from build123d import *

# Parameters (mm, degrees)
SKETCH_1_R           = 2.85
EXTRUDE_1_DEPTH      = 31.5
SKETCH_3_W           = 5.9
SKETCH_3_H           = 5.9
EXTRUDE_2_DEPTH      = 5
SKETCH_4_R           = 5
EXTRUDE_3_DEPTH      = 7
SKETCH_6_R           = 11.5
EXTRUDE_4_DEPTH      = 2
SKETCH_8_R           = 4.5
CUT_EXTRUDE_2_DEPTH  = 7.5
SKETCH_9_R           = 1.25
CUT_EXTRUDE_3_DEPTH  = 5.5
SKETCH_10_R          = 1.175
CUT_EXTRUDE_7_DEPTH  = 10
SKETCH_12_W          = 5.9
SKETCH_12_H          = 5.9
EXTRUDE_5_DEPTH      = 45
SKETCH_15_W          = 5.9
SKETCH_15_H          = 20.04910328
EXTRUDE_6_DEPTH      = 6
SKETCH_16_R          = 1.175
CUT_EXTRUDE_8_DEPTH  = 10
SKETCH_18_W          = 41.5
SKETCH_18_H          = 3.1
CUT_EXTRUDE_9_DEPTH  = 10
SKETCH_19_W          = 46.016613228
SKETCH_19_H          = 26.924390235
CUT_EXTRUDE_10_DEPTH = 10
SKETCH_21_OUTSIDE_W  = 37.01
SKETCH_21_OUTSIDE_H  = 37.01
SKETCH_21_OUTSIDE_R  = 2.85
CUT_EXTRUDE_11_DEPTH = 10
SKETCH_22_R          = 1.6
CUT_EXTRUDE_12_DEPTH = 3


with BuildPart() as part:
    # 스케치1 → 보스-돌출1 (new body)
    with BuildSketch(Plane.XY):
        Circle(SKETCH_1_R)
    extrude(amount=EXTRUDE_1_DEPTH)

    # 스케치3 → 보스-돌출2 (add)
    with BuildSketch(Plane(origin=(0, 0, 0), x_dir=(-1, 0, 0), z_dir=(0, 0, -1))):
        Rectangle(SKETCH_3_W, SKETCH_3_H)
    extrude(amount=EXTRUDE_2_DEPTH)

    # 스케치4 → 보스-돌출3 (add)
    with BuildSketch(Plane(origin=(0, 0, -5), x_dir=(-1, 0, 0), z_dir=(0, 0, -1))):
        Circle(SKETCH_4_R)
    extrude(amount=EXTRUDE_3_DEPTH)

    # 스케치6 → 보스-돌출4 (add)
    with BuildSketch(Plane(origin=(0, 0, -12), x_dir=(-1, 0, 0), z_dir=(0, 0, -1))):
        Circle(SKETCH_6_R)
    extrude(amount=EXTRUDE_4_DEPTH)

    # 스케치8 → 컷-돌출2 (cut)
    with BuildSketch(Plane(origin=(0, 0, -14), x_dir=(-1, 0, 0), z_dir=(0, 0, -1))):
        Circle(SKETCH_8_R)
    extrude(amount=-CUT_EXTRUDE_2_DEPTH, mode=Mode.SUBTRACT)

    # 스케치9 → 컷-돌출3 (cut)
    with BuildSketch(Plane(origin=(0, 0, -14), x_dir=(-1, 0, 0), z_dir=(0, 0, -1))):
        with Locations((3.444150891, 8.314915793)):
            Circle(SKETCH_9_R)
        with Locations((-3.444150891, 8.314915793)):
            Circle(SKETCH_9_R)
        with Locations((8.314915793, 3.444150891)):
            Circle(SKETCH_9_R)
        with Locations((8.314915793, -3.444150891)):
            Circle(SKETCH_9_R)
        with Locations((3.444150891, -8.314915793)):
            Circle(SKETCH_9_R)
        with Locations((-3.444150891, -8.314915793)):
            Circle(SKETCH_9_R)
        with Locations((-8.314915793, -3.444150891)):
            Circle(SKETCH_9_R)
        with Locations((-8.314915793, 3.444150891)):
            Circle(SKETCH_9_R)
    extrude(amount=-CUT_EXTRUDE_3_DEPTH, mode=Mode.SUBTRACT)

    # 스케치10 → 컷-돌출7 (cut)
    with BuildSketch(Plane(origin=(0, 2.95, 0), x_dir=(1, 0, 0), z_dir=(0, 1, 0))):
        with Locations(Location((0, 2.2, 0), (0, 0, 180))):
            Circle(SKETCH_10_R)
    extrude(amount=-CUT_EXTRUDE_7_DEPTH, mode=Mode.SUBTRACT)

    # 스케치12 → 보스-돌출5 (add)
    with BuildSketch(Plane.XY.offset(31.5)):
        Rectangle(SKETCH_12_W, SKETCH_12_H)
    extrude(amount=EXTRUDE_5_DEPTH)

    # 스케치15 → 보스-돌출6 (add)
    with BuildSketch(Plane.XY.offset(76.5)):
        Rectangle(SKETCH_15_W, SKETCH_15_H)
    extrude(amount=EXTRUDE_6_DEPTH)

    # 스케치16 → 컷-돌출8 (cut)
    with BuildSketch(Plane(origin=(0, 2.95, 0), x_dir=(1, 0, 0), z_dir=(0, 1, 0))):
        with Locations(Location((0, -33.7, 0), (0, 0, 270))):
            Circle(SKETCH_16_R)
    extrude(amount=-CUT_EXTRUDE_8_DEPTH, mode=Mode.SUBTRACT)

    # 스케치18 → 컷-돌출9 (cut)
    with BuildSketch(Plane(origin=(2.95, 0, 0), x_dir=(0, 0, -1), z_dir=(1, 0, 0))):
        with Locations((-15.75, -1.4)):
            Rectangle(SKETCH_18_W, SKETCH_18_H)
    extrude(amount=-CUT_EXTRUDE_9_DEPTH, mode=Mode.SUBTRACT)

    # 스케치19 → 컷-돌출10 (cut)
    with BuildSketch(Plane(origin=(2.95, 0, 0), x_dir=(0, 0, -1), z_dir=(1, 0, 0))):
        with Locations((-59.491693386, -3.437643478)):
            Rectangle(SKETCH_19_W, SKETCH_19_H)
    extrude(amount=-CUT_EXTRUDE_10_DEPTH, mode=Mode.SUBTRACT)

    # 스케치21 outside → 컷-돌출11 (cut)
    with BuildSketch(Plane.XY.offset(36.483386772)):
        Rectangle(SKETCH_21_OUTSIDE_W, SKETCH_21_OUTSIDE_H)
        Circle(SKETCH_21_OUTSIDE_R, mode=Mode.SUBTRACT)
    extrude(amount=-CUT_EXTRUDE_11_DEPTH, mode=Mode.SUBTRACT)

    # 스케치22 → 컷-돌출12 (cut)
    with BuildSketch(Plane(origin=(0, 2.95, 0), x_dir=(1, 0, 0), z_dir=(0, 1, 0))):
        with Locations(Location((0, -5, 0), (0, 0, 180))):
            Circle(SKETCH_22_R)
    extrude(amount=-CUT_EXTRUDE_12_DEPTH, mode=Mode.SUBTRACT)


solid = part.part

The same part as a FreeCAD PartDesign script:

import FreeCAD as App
import Part
import Sketcher
Q = App.Units.Quantity

doc = App.newDocument("Part")
params = doc.addObject("Spreadsheet::Sheet", "Params")
for row, (alias, value) in enumerate([
    ("sketch1_diameter", "5.7 mm"),
    ("pad1_length", "31.5 mm"),
    ("sketch2_width", "5.9 mm"),
    ("pad2_length", "5 mm"),
    ("sketch3_diameter", "10 mm"),
    ("pad3_length", "7 mm"),
    ("sketch4_diameter", "23 mm"),
    ("pad4_length", "2 mm"),
    ("sketch5_diameter", "9 mm"),
    ("pocket1_length", "7.5 mm"),
    ("sketch6_diameter", "2.5 mm"),
    ("pocket2_length", "5.5 mm"),
    ("sketch7_diameter", "2.35 mm"),
    ("pocket3_length", "10 mm"),
    ("sketch8_width", "5.9 mm"),
    ("pad5_length", "45 mm"),
    ("sketch9_width", "5.9 mm"),
    ("pad6_length", "6 mm"),
    ("sketch10_diameter", "2.35 mm"),
    ("pocket4_length", "10 mm"),
    ("sketch11_width", "3.1 mm"),
    ("sketch11_height", "41.5 mm"),
    ("pocket5_length", "10 mm"),
    ("pocket6_length", "10 mm"),
    ("sketch13_diameter", "5.7 mm"),
    ("sketch13_width", "37.01 mm"),
    ("pocket7_length", "10 mm"),
    ("sketch14_diameter", "3.2 mm"),
    ("pocket8_length", "3 mm"),
], start=1):
    params.set(f"A{row}", alias)
    params.set(f"B{row}", "=" + value)
    params.setAlias(f"B{row}", alias)

body = doc.addObject("PartDesign::Body", "Body")

# Sketch on XY plane
sketch1 = body.newObject("Sketcher::SketchObject", "Sketch")
sketch1.AttachmentSupport = (doc.getObject("XY_Plane"), [""])
sketch1.MapMode = "FlatFace"
sketch1.addGeometry(Part.Circle(App.Vector(0, 0, 0), App.Vector(0, 0, 1), 2.85), False)
sketch1.addConstraint([
    Sketcher.Constraint("Coincident", 0, 3, -1, 1),
    Sketcher.Constraint("Diameter", 0, Q("5.7 mm")),
])
sketch1.setExpression("Constraints[1]", "Params.sketch1_diameter")
pad1 = body.newObject("PartDesign::Pad", "Pad")
pad1.Profile = sketch1
pad1.setExpression("Length", "Params.pad1_length")

# Sketch on XY plane
sketch2 = body.newObject("Sketcher::SketchObject", "Sketch001")
sketch2.AttachmentSupport = (doc.getObject("XY_Plane"), [""])
sketch2.MapMode = "FlatFace"
sketch2.addGeometry([
    Part.LineSegment(App.Vector(2.95, 2.95, 0), App.Vector(2.95, -2.95, 0)),
    Part.LineSegment(App.Vector(2.95, -2.95, 0), App.Vector(-2.95, -2.95, 0)),
    Part.LineSegment(App.Vector(-2.95, -2.95, 0), App.Vector(-2.95, 2.95, 0)),
    Part.LineSegment(App.Vector(-2.95, 2.95, 0), App.Vector(2.95, 2.95, 0)),
], False)
sketch2.addConstraint([
    Sketcher.Constraint("Coincident", 0, 2, 1, 1),
    Sketcher.Constraint("Coincident", 1, 2, 2, 1),
    Sketcher.Constraint("Coincident", 2, 2, 3, 1),
    Sketcher.Constraint("Coincident", 3, 2, 0, 1),
    Sketcher.Constraint("Vertical", 0),
    Sketcher.Constraint("Horizontal", 1),
    Sketcher.Constraint("Vertical", 2),
    Sketcher.Constraint("Horizontal", 3),
    Sketcher.Constraint("Symmetric", 0, 2, 2, 2, -1, 1),
    Sketcher.Constraint("Equal", 3, 0),
    Sketcher.Constraint("DistanceX", 1, 2, 1, 1, Q("5.9 mm")),
])
sketch2.setExpression("Constraints[10]", "Params.sketch2_width")
pad2 = body.newObject("PartDesign::Pad", "Pad001")
pad2.Profile = sketch2
pad2.setExpression("Length", "Params.pad2_length")
pad2.Reversed = True

# Sketch on XY plane
sketch3 = body.newObject("Sketcher::SketchObject", "Sketch002")
sketch3.AttachmentSupport = (doc.getObject("XY_Plane"), [""])
sketch3.MapMode = "FlatFace"
sketch3.AttachmentOffset = App.Placement(App.Vector(0, 0, -5), App.Rotation())
sketch3.addGeometry(Part.Circle(App.Vector(0, 0, 0), App.Vector(0, 0, 1), 5), False)
sketch3.addConstraint([
    Sketcher.Constraint("Coincident", 0, 3, -1, 1),
    Sketcher.Constraint("Diameter", 0, Q("10 mm")),
])
sketch3.setExpression("Constraints[1]", "Params.sketch3_diameter")
pad3 = body.newObject("PartDesign::Pad", "Pad002")
pad3.Profile = sketch3
pad3.setExpression("Length", "Params.pad3_length")
pad3.Reversed = True

# Sketch on XY plane
sketch4 = body.newObject("Sketcher::SketchObject", "Sketch003")
sketch4.AttachmentSupport = (doc.getObject("XY_Plane"), [""])
sketch4.MapMode = "FlatFace"
sketch4.AttachmentOffset = App.Placement(App.Vector(0, 0, -12), App.Rotation())
sketch4.addGeometry(Part.Circle(App.Vector(0, 0, 0), App.Vector(0, 0, 1), 11.5), False)
sketch4.addConstraint([
    Sketcher.Constraint("Coincident", 0, 3, -1, 1),
    Sketcher.Constraint("Diameter", 0, Q("23 mm")),
])
sketch4.setExpression("Constraints[1]", "Params.sketch4_diameter")
pad4 = body.newObject("PartDesign::Pad", "Pad003")
pad4.Profile = sketch4
pad4.setExpression("Length", "Params.pad4_length")
pad4.Reversed = True

# Sketch on XY plane
sketch5 = body.newObject("Sketcher::SketchObject", "Sketch004")
sketch5.AttachmentSupport = (doc.getObject("XY_Plane"), [""])
sketch5.MapMode = "FlatFace"
sketch5.AttachmentOffset = App.Placement(App.Vector(0, 0, -14), App.Rotation())
sketch5.addGeometry(Part.Circle(App.Vector(0, 0, 0), App.Vector(0, 0, 1), 4.5), False)
sketch5.addConstraint([
    Sketcher.Constraint("Coincident", 0, 3, -1, 1),
    Sketcher.Constraint("Diameter", 0, Q("9 mm")),
])
sketch5.setExpression("Constraints[1]", "Params.sketch5_diameter")
pocket1 = body.newObject("PartDesign::Pocket", "Pocket")
pocket1.Profile = sketch5
pocket1.setExpression("Length", "Params.pocket1_length")
pocket1.Reversed = True

# Sketch on XY plane
sketch6 = body.newObject("Sketcher::SketchObject", "Sketch005")
sketch6.AttachmentSupport = (doc.getObject("XY_Plane"), [""])
sketch6.MapMode = "FlatFace"
sketch6.AttachmentOffset = App.Placement(App.Vector(0, 0, -14), App.Rotation())
sketch6.addGeometry([
    Part.Circle(App.Vector(-3.444151, 8.314916, 0), App.Vector(0, 0, 1), 1.25),  # 0
    Part.Circle(App.Vector(3.444151, 8.314916, 0), App.Vector(0, 0, 1), 1.25),  # 1
    Part.Circle(App.Vector(-8.314916, 3.444151, 0), App.Vector(0, 0, 1), 1.25),  # 2
    Part.Circle(App.Vector(-8.314916, -3.444151, 0), App.Vector(0, 0, 1), 1.25),  # 3
    Part.Circle(App.Vector(-3.444151, -8.314916, 0), App.Vector(0, 0, 1), 1.25),  # 4
    Part.Circle(App.Vector(3.444151, -8.314916, 0), App.Vector(0, 0, 1), 1.25),  # 5
    Part.Circle(App.Vector(8.314916, -3.444151, 0), App.Vector(0, 0, 1), 1.25),  # 6
    Part.Circle(App.Vector(8.314916, 3.444151, 0), App.Vector(0, 0, 1), 1.25),  # 7
], False)
sketch6.addConstraint([
    Sketcher.Constraint("Equal", 0, 1),
    Sketcher.Constraint("Equal", 1, 2),
    Sketcher.Constraint("Equal", 2, 3),
    Sketcher.Constraint("Equal", 3, 4),
    Sketcher.Constraint("Equal", 4, 5),
    Sketcher.Constraint("Equal", 5, 6),
    Sketcher.Constraint("Equal", 6, 7),
    Sketcher.Constraint("Symmetric", 1, 3, 4, 3, -1, 1),
    Sketcher.Constraint("Symmetric", 0, 3, 5, 3, -1, 1),
    Sketcher.Constraint("Symmetric", 2, 3, 6, 3, -1, 1),
    Sketcher.Constraint("Symmetric", 3, 3, 7, 3, -1, 1),
    Sketcher.Constraint("Symmetric", 0, 3, 1, 3, -2),
    Sketcher.Constraint("Symmetric", 3, 3, 6, 3, -2),
    Sketcher.Constraint("Diameter", 0, Q("2.5 mm")),
    Sketcher.Constraint("DistanceX", 0, 3, 1, 3, Q("6.888302 mm")),
    Sketcher.Constraint("DistanceY", 3, 3, 2, 3, Q("6.888302 mm")),
    Sketcher.Constraint("DistanceY", 4, 3, 0, 3, Q("16.629832 mm")),
    Sketcher.Constraint("DistanceX", 3, 3, 6, 3, Q("16.629832 mm")),
])
sketch6.setExpression("Constraints[13]", "Params.sketch6_diameter")
pocket2 = body.newObject("PartDesign::Pocket", "Pocket001")
pocket2.Profile = sketch6
pocket2.setExpression("Length", "Params.pocket2_length")
pocket2.Reversed = True

# Sketch on XZ plane
sketch7 = body.newObject("Sketcher::SketchObject", "Sketch006")
sketch7.AttachmentSupport = (doc.getObject("XZ_Plane"), [""])
sketch7.MapMode = "FlatFace"
sketch7.AttachmentOffset = App.Placement(App.Vector(0, 0, -2.95), App.Rotation())
sketch7.addGeometry(Part.Circle(App.Vector(0, -2.2, 0), App.Vector(0, 0, 1), 1.175), False)
sketch7.addConstraint([
    Sketcher.Constraint("PointOnObject", 0, 3, -2),
    Sketcher.Constraint("Diameter", 0, Q("2.35 mm")),
    Sketcher.Constraint("DistanceY", 0, 3, -1, 1, Q("2.2 mm")),
])
sketch7.setExpression("Constraints[1]", "Params.sketch7_diameter")
pocket3 = body.newObject("PartDesign::Pocket", "Pocket002")
pocket3.Profile = sketch7
pocket3.setExpression("Length", "Params.pocket3_length")
pocket3.Reversed = True

# Sketch on XY plane
sketch8 = body.newObject("Sketcher::SketchObject", "Sketch007")
sketch8.AttachmentSupport = (doc.getObject("XY_Plane"), [""])
sketch8.MapMode = "FlatFace"
sketch8.AttachmentOffset = App.Placement(App.Vector(0, 0, 31.5), App.Rotation())
sketch8.addGeometry([
    Part.LineSegment(App.Vector(-2.95, 2.95, 0), App.Vector(-2.95, -2.95, 0)),
    Part.LineSegment(App.Vector(-2.95, -2.95, 0), App.Vector(2.95, -2.95, 0)),
    Part.LineSegment(App.Vector(2.95, -2.95, 0), App.Vector(2.95, 2.95, 0)),
    Part.LineSegment(App.Vector(2.95, 2.95, 0), App.Vector(-2.95, 2.95, 0)),
], False)
sketch8.addConstraint([
    Sketcher.Constraint("Coincident", 0, 2, 1, 1),
    Sketcher.Constraint("Coincident", 1, 2, 2, 1),
    Sketcher.Constraint("Coincident", 2, 2, 3, 1),
    Sketcher.Constraint("Coincident", 3, 2, 0, 1),
    Sketcher.Constraint("Vertical", 0),
    Sketcher.Constraint("Horizontal", 1),
    Sketcher.Constraint("Vertical", 2),
    Sketcher.Constraint("Horizontal", 3),
    Sketcher.Constraint("Symmetric", 0, 2, 2, 2, -1, 1),
    Sketcher.Constraint("Equal", 3, 0),
    Sketcher.Constraint("DistanceX", 1, 1, 1, 2, Q("5.9 mm")),
])
sketch8.setExpression("Constraints[10]", "Params.sketch8_width")
pad5 = body.newObject("PartDesign::Pad", "Pad004")
pad5.Profile = sketch8
pad5.setExpression("Length", "Params.pad5_length")

# Sketch on XY plane
sketch9 = body.newObject("Sketcher::SketchObject", "Sketch008")
sketch9.AttachmentSupport = (doc.getObject("XY_Plane"), [""])
sketch9.MapMode = "FlatFace"
sketch9.AttachmentOffset = App.Placement(App.Vector(0, 0, 76.5), App.Rotation())
sketch9.addGeometry([
    Part.LineSegment(App.Vector(-2.95, 10.024552, 0), App.Vector(-2.95, -10.024552, 0)),
    Part.LineSegment(App.Vector(-2.95, -10.024552, 0), App.Vector(2.95, -10.024552, 0)),
    Part.LineSegment(App.Vector(2.95, -10.024552, 0), App.Vector(2.95, 10.024552, 0)),
    Part.LineSegment(App.Vector(2.95, 10.024552, 0), App.Vector(-2.95, 10.024552, 0)),
], False)
sketch9.addConstraint([
    Sketcher.Constraint("Coincident", 0, 2, 1, 1),
    Sketcher.Constraint("Coincident", 1, 2, 2, 1),
    Sketcher.Constraint("Coincident", 2, 2, 3, 1),
    Sketcher.Constraint("Coincident", 3, 2, 0, 1),
    Sketcher.Constraint("Vertical", 0),
    Sketcher.Constraint("Horizontal", 1),
    Sketcher.Constraint("Vertical", 2),
    Sketcher.Constraint("Horizontal", 3),
    Sketcher.Constraint("Symmetric", 0, 2, 2, 2, -1, 1),
    Sketcher.Constraint("DistanceX", 1, 1, 1, 2, Q("5.9 mm")),
    Sketcher.Constraint("DistanceY", 0, 2, 0, 1, Q("20.049103 mm")),
])
sketch9.setExpression("Constraints[9]", "Params.sketch9_width")
pad6 = body.newObject("PartDesign::Pad", "Pad005")
pad6.Profile = sketch9
pad6.setExpression("Length", "Params.pad6_length")

# Sketch on XZ plane
sketch10 = body.newObject("Sketcher::SketchObject", "Sketch009")
sketch10.AttachmentSupport = (doc.getObject("XZ_Plane"), [""])
sketch10.MapMode = "FlatFace"
sketch10.AttachmentOffset = App.Placement(App.Vector(0, 0, -2.95), App.Rotation())
sketch10.addGeometry(Part.Circle(App.Vector(0, 33.7, 0), App.Vector(0, 0, 1), 1.175), False)
sketch10.addConstraint([
    Sketcher.Constraint("PointOnObject", 0, 3, -2),
    Sketcher.Constraint("Diameter", 0, Q("2.35 mm")),
    Sketcher.Constraint("DistanceY", -1, 1, 0, 3, Q("33.7 mm")),
])
sketch10.setExpression("Constraints[1]", "Params.sketch10_diameter")
pocket4 = body.newObject("PartDesign::Pocket", "Pocket003")
pocket4.Profile = sketch10
pocket4.setExpression("Length", "Params.pocket4_length")
pocket4.Reversed = True

# Sketch on YZ plane
sketch11 = body.newObject("Sketcher::SketchObject", "Sketch010")
sketch11.AttachmentSupport = (doc.getObject("YZ_Plane"), [""])
sketch11.MapMode = "FlatFace"
sketch11.AttachmentOffset = App.Placement(App.Vector(0, 0, 2.95), App.Rotation())
sketch11.addGeometry([
    Part.LineSegment(App.Vector(0.15, 36.5, 0), App.Vector(-2.95, 36.5, 0)),
    Part.LineSegment(App.Vector(-2.95, 36.5, 0), App.Vector(-2.95, -5, 0)),
    Part.LineSegment(App.Vector(-2.95, -5, 0), App.Vector(0.15, -5, 0)),
    Part.LineSegment(App.Vector(0.15, -5, 0), App.Vector(0.15, 36.5, 0)),
], False)
sketch11.addConstraint([
    Sketcher.Constraint("Coincident", 0, 2, 1, 1),
    Sketcher.Constraint("Coincident", 1, 2, 2, 1),
    Sketcher.Constraint("Coincident", 2, 2, 3, 1),
    Sketcher.Constraint("Coincident", 3, 2, 0, 1),
    Sketcher.Constraint("Horizontal", 0),
    Sketcher.Constraint("Vertical", 1),
    Sketcher.Constraint("Horizontal", 2),
    Sketcher.Constraint("Vertical", 3),
    Sketcher.Constraint("DistanceX", 0, 2, 0, 1, Q("3.1 mm")),
    Sketcher.Constraint("DistanceY", 1, 2, 1, 1, Q("41.5 mm")),
    Sketcher.Constraint("DistanceY", 1, 2, -1, 1, Q("5 mm")),
    Sketcher.Constraint("DistanceX", 0, 2, -1, 1, Q("2.95 mm")),
])
sketch11.setExpression("Constraints[8]", "Params.sketch11_width")
sketch11.setExpression("Constraints[9]", "Params.sketch11_height")
pocket5 = body.newObject("PartDesign::Pocket", "Pocket004")
pocket5.Profile = sketch11
pocket5.setExpression("Length", "Params.pocket5_length")

# Sketch on YZ plane
sketch12 = body.newObject("Sketcher::SketchObject", "Sketch011")
sketch12.AttachmentSupport = (doc.getObject("YZ_Plane"), [""])
sketch12.MapMode = "FlatFace"
sketch12.AttachmentOffset = App.Placement(App.Vector(0, 0, 2.95), App.Rotation())
sketch12.addGeometry([
    Part.LineSegment(App.Vector(10.024552, 82.5, 0), App.Vector(-16.899839, 82.5, 0)),
    Part.LineSegment(App.Vector(-16.899839, 82.5, 0), App.Vector(-16.899839, 36.483387, 0)),
    Part.LineSegment(App.Vector(-16.899839, 36.483387, 0), App.Vector(10.024552, 36.483387, 0)),
    Part.LineSegment(App.Vector(10.024552, 36.483387, 0), App.Vector(10.024552, 82.5, 0)),
], False)
sketch12.addConstraint([
    Sketcher.Constraint("Coincident", 0, 2, 1, 1),
    Sketcher.Constraint("Coincident", 1, 2, 2, 1),
    Sketcher.Constraint("Coincident", 2, 2, 3, 1),
    Sketcher.Constraint("Coincident", 3, 2, 0, 1),
    Sketcher.Constraint("Horizontal", 0),
    Sketcher.Constraint("Vertical", 1),
    Sketcher.Constraint("Horizontal", 2),
    Sketcher.Constraint("Vertical", 3),
    Sketcher.Constraint("DistanceY", -1, 1, 0, 2, Q("82.5 mm")),
    Sketcher.Constraint("DistanceX", 0, 2, 0, 1, Q("26.92439 mm")),
    Sketcher.Constraint("DistanceY", 1, 2, 1, 1, Q("46.016613 mm")),
    Sketcher.Constraint("DistanceX", 0, 2, -1, 1, Q("16.899839 mm")),
])
pocket6 = body.newObject("PartDesign::Pocket", "Pocket005")
pocket6.Profile = sketch12
pocket6.setExpression("Length", "Params.pocket6_length")

# Sketch on XY plane
sketch13 = body.newObject("Sketcher::SketchObject", "Sketch012")
sketch13.AttachmentSupport = (doc.getObject("XY_Plane"), [""])
sketch13.MapMode = "FlatFace"
sketch13.AttachmentOffset = App.Placement(App.Vector(0, 0, 36.483387), App.Rotation())
sketch13.addGeometry([
    Part.LineSegment(App.Vector(-18.505, 18.505, 0), App.Vector(-18.505, -18.505, 0)),  # 0
    Part.LineSegment(App.Vector(-18.505, -18.505, 0), App.Vector(18.505, -18.505, 0)),  # 1
    Part.LineSegment(App.Vector(18.505, -18.505, 0), App.Vector(18.505, 18.505, 0)),  # 2
    Part.LineSegment(App.Vector(18.505, 18.505, 0), App.Vector(-18.505, 18.505, 0)),  # 3
    Part.Circle(App.Vector(0, 0, 0), App.Vector(0, 0, 1), 2.85),  # 4
], False)
sketch13.addConstraint([
    Sketcher.Constraint("Coincident", 0, 2, 1, 1),
    Sketcher.Constraint("Coincident", 1, 2, 2, 1),
    Sketcher.Constraint("Coincident", 2, 2, 3, 1),
    Sketcher.Constraint("Coincident", 3, 2, 0, 1),
    Sketcher.Constraint("Vertical", 0),
    Sketcher.Constraint("Horizontal", 1),
    Sketcher.Constraint("Vertical", 2),
    Sketcher.Constraint("Horizontal", 3),
    Sketcher.Constraint("Coincident", 4, 3, -1, 1),
    Sketcher.Constraint("Symmetric", 0, 2, 2, 2, -1, 1),
    Sketcher.Constraint("Equal", 3, 0),
    Sketcher.Constraint("Diameter", 4, Q("5.7 mm")),
    Sketcher.Constraint("DistanceX", 1, 1, 1, 2, Q("37.01 mm")),
])
sketch13.setExpression("Constraints[11]", "Params.sketch13_diameter")
sketch13.setExpression("Constraints[12]", "Params.sketch13_width")
pocket7 = body.newObject("PartDesign::Pocket", "Pocket006")
pocket7.Profile = sketch13
pocket7.setExpression("Length", "Params.pocket7_length")

# Sketch on XZ plane
sketch14 = body.newObject("Sketcher::SketchObject", "Sketch013")
sketch14.AttachmentSupport = (doc.getObject("XZ_Plane"), [""])
sketch14.MapMode = "FlatFace"
sketch14.AttachmentOffset = App.Placement(App.Vector(0, 0, -2.95), App.Rotation())
sketch14.addGeometry(Part.Circle(App.Vector(0, 5, 0), App.Vector(0, 0, 1), 1.6), False)
sketch14.addConstraint([
    Sketcher.Constraint("PointOnObject", 0, 3, -2),
    Sketcher.Constraint("Diameter", 0, Q("3.2 mm")),
    Sketcher.Constraint("DistanceY", -1, 1, 0, 3, Q("5 mm")),
])
sketch14.setExpression("Constraints[1]", "Params.sketch14_diameter")
pocket8 = body.newObject("PartDesign::Pocket", "Pocket007")
pocket8.Profile = sketch14
pocket8.setExpression("Length", "Params.pocket8_length")
pocket8.Reversed = True

doc.recompute()
